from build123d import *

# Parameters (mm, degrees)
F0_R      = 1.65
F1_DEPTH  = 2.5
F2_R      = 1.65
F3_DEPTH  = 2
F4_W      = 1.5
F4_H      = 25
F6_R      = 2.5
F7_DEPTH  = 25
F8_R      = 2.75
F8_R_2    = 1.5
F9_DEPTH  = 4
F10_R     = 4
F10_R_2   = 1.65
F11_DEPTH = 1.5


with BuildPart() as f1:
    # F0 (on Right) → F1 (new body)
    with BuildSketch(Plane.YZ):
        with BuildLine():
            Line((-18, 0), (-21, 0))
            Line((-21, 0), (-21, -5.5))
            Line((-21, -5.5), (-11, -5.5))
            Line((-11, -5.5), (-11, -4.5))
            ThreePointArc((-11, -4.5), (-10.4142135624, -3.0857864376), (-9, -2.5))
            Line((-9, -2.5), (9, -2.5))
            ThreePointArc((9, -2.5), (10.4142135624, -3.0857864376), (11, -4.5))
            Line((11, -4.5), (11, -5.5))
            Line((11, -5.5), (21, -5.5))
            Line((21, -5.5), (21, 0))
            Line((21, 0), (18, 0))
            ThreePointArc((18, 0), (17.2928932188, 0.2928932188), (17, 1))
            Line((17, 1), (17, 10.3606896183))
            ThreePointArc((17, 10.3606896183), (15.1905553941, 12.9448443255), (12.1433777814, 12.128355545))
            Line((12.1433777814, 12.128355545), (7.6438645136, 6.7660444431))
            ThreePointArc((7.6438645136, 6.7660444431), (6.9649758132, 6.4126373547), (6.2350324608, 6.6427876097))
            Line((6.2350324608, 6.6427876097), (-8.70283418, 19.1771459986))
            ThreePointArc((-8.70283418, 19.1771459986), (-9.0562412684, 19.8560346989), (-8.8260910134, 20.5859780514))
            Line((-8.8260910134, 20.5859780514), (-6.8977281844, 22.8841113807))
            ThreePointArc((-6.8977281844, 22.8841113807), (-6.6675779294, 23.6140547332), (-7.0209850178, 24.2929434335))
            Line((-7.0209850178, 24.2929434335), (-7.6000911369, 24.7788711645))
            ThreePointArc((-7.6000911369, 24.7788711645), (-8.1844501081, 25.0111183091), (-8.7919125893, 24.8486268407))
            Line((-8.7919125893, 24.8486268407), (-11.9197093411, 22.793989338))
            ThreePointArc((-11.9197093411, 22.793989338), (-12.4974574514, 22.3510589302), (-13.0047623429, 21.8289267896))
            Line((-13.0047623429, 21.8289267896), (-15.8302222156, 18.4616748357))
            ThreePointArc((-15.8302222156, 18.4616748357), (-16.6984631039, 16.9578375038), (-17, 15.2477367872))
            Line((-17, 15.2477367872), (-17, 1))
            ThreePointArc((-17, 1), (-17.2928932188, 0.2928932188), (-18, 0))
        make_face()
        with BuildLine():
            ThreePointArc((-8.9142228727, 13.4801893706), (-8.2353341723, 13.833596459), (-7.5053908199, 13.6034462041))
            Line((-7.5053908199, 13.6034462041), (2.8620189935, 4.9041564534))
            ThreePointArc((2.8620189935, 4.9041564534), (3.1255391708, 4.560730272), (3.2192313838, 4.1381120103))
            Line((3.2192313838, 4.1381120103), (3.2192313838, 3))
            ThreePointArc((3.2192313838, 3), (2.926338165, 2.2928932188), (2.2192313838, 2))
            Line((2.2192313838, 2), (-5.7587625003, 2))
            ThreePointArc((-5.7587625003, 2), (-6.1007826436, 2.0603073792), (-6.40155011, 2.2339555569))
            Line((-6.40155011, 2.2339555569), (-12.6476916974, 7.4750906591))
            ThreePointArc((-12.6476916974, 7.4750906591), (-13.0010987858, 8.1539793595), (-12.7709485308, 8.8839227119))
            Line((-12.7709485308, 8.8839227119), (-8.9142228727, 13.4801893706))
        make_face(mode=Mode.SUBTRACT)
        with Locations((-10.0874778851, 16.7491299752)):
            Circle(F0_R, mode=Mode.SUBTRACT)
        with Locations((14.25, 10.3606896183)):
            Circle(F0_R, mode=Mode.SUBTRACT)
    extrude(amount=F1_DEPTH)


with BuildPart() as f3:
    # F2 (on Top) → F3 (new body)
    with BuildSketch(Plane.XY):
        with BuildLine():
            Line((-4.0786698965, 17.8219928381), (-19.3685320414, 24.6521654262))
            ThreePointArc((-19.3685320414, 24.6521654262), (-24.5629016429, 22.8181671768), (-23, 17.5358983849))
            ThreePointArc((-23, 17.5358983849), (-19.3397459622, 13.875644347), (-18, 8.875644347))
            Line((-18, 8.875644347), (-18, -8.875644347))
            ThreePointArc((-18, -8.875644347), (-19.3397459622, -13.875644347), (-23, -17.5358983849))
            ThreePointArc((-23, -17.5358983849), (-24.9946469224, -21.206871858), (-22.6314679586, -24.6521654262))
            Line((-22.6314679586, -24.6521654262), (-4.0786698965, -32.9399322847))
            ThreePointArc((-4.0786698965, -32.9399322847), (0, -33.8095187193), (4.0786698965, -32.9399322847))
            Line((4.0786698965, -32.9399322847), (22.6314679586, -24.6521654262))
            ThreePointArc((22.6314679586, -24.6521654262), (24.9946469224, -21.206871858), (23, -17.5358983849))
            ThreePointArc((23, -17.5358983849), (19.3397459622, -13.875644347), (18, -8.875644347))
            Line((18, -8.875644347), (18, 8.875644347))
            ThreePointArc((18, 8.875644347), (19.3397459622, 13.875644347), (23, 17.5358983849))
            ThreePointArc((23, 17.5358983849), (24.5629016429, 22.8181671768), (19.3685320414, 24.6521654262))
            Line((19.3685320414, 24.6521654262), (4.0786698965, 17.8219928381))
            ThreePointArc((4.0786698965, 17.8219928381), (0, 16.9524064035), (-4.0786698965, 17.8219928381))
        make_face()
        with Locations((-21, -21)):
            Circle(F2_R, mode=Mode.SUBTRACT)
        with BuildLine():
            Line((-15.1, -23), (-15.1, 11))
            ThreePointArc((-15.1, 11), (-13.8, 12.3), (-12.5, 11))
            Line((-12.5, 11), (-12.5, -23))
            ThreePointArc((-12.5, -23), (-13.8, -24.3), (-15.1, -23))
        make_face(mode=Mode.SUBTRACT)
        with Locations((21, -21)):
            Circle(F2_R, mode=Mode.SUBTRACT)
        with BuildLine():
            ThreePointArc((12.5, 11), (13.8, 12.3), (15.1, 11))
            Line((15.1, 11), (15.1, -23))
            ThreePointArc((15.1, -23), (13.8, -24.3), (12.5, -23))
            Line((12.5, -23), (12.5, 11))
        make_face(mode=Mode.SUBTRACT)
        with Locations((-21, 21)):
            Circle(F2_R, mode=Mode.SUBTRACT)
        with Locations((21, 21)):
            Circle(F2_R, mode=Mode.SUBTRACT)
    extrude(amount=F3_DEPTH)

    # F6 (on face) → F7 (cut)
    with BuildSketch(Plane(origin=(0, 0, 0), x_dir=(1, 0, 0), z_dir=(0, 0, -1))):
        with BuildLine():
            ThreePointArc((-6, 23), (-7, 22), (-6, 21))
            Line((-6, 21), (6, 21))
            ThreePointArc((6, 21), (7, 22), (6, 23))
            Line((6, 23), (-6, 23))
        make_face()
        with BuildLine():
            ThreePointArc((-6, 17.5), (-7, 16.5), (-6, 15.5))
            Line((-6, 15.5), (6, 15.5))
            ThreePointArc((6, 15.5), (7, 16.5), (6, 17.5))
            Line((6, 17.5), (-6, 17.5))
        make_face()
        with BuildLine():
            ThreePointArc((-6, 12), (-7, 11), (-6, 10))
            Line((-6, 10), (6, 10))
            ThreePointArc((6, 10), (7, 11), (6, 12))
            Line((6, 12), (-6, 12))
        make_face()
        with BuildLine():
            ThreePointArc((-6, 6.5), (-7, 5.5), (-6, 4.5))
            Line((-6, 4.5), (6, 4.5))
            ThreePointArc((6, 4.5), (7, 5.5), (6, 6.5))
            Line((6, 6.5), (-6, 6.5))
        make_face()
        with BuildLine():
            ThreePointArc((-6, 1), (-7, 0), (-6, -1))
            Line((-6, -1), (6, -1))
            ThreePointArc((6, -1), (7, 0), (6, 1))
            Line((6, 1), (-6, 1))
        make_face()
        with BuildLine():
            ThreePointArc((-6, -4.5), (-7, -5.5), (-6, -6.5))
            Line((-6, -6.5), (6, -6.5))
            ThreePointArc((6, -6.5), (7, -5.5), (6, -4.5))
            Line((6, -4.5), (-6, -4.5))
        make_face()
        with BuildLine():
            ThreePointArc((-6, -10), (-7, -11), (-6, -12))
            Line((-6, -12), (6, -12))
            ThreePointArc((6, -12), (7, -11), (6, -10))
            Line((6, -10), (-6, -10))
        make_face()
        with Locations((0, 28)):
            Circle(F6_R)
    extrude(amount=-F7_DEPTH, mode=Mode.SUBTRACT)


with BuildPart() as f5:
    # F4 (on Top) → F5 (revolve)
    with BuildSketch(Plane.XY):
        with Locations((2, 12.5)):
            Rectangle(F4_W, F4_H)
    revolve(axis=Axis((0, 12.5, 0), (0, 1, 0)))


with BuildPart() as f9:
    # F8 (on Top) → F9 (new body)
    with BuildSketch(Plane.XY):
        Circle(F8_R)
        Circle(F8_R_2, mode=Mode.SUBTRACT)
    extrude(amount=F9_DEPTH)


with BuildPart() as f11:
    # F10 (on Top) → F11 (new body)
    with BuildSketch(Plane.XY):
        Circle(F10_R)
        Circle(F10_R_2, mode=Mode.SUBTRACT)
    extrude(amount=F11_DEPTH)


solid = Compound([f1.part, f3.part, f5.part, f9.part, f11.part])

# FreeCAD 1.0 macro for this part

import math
import FreeCAD as App
import Part
import Sketcher
from FreeCAD import Vector
Q = App.Units.Quantity


def add_polygon(sketch, points):
    """Adds a closed chain of lines whose ends are joined by coincident constraints."""
    first, n = sketch.GeometryCount, len(points)
    for a, b in zip(points, points[1:] + points[:1]):
        sketch.addGeometry(Part.LineSegment(App.Vector(*a, 0), App.Vector(*b, 0)), False)
    for i in range(n):
        sketch.addConstraint(Sketcher.Constraint("Coincident", first + i, 2, first + (i + 1) % n, 1))

doc = App.newDocument("Part")
body = doc.addObject("PartDesign::Body", "Body")

# Sketch on YZ plane
sketch1 = body.newObject("Sketcher::SketchObject", "Sketch")
sketch1.AttachmentSupport = (doc.getObject("YZ_Plane"), [""])
sketch1.MapMode = "FlatFace"
sketch1.addGeometry(Part.LineSegment(Vector(-18, 0, 0), Vector(-21, 0, 0)), False)
sketch1.addGeometry(Part.LineSegment(Vector(-21, 0, 0), Vector(-21, -5.5, 0)), False)
sketch1.addGeometry(Part.LineSegment(Vector(-21, -5.5, 0), Vector(-11, -5.5, 0)), False)
sketch1.addGeometry(Part.LineSegment(Vector(-11, -5.5, 0), Vector(-11, -4.5, 0)), False)
sketch1.addGeometry(Part.ArcOfCircle(Part.Circle(Vector(-9, -4.5, 0), Vector(0, 0, 1), 2), math.radians(90), math.radians(180)), False)
sketch1.addGeometry(Part.LineSegment(Vector(-9, -2.5, 0), Vector(9, -2.5, 0)), False)
sketch1.addGeometry(Part.ArcOfCircle(Part.Circle(Vector(9, -4.5, 0), Vector(0, 0, 1), 2), math.radians(0), math.radians(90)), False)
sketch1.addGeometry(Part.LineSegment(Vector(11, -4.5, 0), Vector(11, -5.5, 0)), False)
sketch1.addGeometry(Part.LineSegment(Vector(11, -5.5, 0), Vector(21, -5.5, 0)), False)
sketch1.addGeometry(Part.LineSegment(Vector(21, -5.5, 0), Vector(21, 0, 0)), False)
sketch1.addGeometry(Part.LineSegment(Vector(21, 0, 0), Vector(18, 0, 0)), False)
sketch1.addGeometry(Part.ArcOfCircle(Part.Circle(Vector(18, 1, 0), Vector(0, 0, 1), 1), math.radians(180), math.radians(270)), False)
sketch1.addGeometry(Part.LineSegment(Vector(17, 1, 0), Vector(17, 10.4, 0)), False)
sketch1.addGeometry(Part.ArcOfCircle(Part.Circle(Vector(14.2, 10.4, 0), Vector(0, 0, 1), 2.8), math.radians(0), math.radians(140)), False)
sketch1.addGeometry(Part.LineSegment(Vector(12.1, 12.1, 0), Vector(7.6, 6.8, 0)), False)
sketch1.addGeometry(Part.ArcOfCircle(Part.Circle(Vector(6.9, 7.4, 0), Vector(0, 0, 1), 1), math.radians(-130), math.radians(-40)), False)
sketch1.addGeometry(Part.LineSegment(Vector(6.2, 6.6, 0), Vector(-8.7, 19.2, 0)), False)
sketch1.addGeometry(Part.ArcOfCircle(Part.Circle(Vector(-8.1, 19.9, 0), Vector(0, 0, 1), 1), math.radians(140), math.radians(230)), False)
sketch1.addGeometry(Part.LineSegment(Vector(-8.8, 20.6, 0), Vector(-6.9, 22.9, 0)), False)
sketch1.addGeometry(Part.ArcOfCircle(Part.Circle(Vector(-7.7, 23.5, 0), Vector(0, 0, 1), 1), math.radians(-40), math.radians(50)), False)
sketch1.addGeometry(Part.LineSegment(Vector(-7, 24.3, 0), Vector(-7.6, 24.8, 0)), False)
sketch1.addGeometry(Part.ArcOfCircle(Part.Circle(Vector(-8.2, 24, 0), Vector(0, 0, 1), 1), math.radians(50), math.radians(123)), False)
sketch1.addGeometry(Part.LineSegment(Vector(-8.8, 24.8, 0), Vector(-11.9, 22.8, 0)), False)
sketch1.addGeometry(Part.ArcOfCircle(Part.Circle(Vector(-9.2, 18.6, 0), Vector(0, 0, 1), 5), math.radians(123.3), math.radians(140)), False)
sketch1.addGeometry(Part.LineSegment(Vector(-13, 21.8, 0), Vector(-15.8, 18.5, 0)), False)
sketch1.addGeometry(Part.ArcOfCircle(Part.Circle(Vector(-12, 15.2, 0), Vector(0, 0, 1), 5), math.radians(140), math.radians(180)), False)
sketch1.addGeometry(Part.LineSegment(Vector(-17, 15.2, 0), Vector(-17, 1, 0)), False)
sketch1.addGeometry(Part.ArcOfCircle(Part.Circle(Vector(-18, 1, 0), Vector(0, 0, 1), 1), math.radians(-90), math.radians(0)), False)
sketch1.addGeometry(Part.LineSegment(Vector(-12.8, 8.9, 0), Vector(-8.9, 13.5, 0)), False)
sketch1.addGeometry(Part.ArcOfCircle(Part.Circle(Vector(-8.1, 12.8, 0), Vector(0, 0, 1), 1), math.radians(50), math.radians(140)), False)
sketch1.addGeometry(Part.LineSegment(Vector(-7.5, 13.6, 0), Vector(2.9, 4.9, 0)), False)
sketch1.addGeometry(Part.ArcOfCircle(Part.Circle(Vector(2.2, 4.1, 0), Vector(0, 0, 1), 1), math.radians(0), math.radians(50)), False)
sketch1.addGeometry(Part.LineSegment(Vector(3.2, 4.1, 0), Vector(3.2, 3, 0)), False)
sketch1.addGeometry(Part.ArcOfCircle(Part.Circle(Vector(2.2, 3, 0), Vector(0, 0, 1), 1), math.radians(-90), math.radians(0)), False)
sketch1.addGeometry(Part.LineSegment(Vector(2.2, 2, 0), Vector(-5.8, 2, 0)), False)
sketch1.addGeometry(Part.ArcOfCircle(Part.Circle(Vector(-5.8, 3, 0), Vector(0, 0, 1), 1), math.radians(-130), math.radians(-90)), False)
sketch1.addGeometry(Part.LineSegment(Vector(-6.4, 2.2, 0), Vector(-12.6, 7.5, 0)), False)
sketch1.addGeometry(Part.ArcOfCircle(Part.Circle(Vector(-12, 8.2, 0), Vector(0, 0, 1), 1), math.radians(140), math.radians(230)), False)
sketch1.addGeometry(Part.Circle(Vector(-10.1, 16.7, 0), Vector(0, 0, 1), 1.6), False)
sketch1.addGeometry(Part.Circle(Vector(14.2, 10.4, 0), Vector(0, 0, 1), 1.6), False)
sketch1.addConstraint(Sketcher.Constraint("Coincident", 0, 2, 1, 1))
sketch1.addConstraint(Sketcher.Constraint("Coincident", 1, 2, 2, 1))
sketch1.addConstraint(Sketcher.Constraint("Coincident", 2, 2, 3, 1))
sketch1.addConstraint(Sketcher.Constraint("Tangent", 3, 2, 4, 2))
sketch1.addConstraint(Sketcher.Constraint("Tangent", 4, 1, 5, 1))
sketch1.addConstraint(Sketcher.Constraint("Tangent", 5, 2, 6, 2))
sketch1.addConstraint(Sketcher.Constraint("Tangent", 6, 1, 7, 1))
sketch1.addConstraint(Sketcher.Constraint("Coincident", 7, 2, 8, 1))
sketch1.addConstraint(Sketcher.Constraint("Coincident", 8, 2, 9, 1))
sketch1.addConstraint(Sketcher.Constraint("Coincident", 9, 2, 10, 1))
sketch1.addConstraint(Sketcher.Constraint("Tangent", 10, 2, 11, 2))
sketch1.addConstraint(Sketcher.Constraint("Tangent", 11, 1, 12, 1))
sketch1.addConstraint(Sketcher.Constraint("Tangent", 12, 2, 13, 1))
sketch1.addConstraint(Sketcher.Constraint("Tangent", 13, 2, 14, 1))
sketch1.addConstraint(Sketcher.Constraint("Tangent", 14, 2, 15, 2))
sketch1.addConstraint(Sketcher.Constraint("Tangent", 15, 1, 16, 1))
sketch1.addConstraint(Sketcher.Constraint("Tangent", 16, 2, 17, 2))
sketch1.addConstraint(Sketcher.Constraint("Tangent", 17, 1, 18, 1))
sketch1.addConstraint(Sketcher.Constraint("Tangent", 18, 2, 19, 1))
sketch1.addConstraint(Sketcher.Constraint("Tangent", 19, 2, 20, 1))
sketch1.addConstraint(Sketcher.Constraint("Tangent", 20, 2, 21, 1))
sketch1.addConstraint(Sketcher.Constraint("Tangent", 21, 2, 22, 1))
sketch1.addConstraint(Sketcher.Constraint("Tangent", 22, 2, 23, 1))
sketch1.addConstraint(Sketcher.Constraint("Tangent", 23, 2, 24, 1))
sketch1.addConstraint(Sketcher.Constraint("Tangent", 24, 2, 25, 1))
sketch1.addConstraint(Sketcher.Constraint("Tangent", 25, 2, 26, 1))
sketch1.addConstraint(Sketcher.Constraint("Tangent", 26, 2, 27, 2))
sketch1.addConstraint(Sketcher.Constraint("Tangent", 27, 1, 0, 1))
sketch1.addConstraint(Sketcher.Constraint("Tangent", 28, 2, 29, 2))
sketch1.addConstraint(Sketcher.Constraint("Tangent", 29, 1, 30, 1))
sketch1.addConstraint(Sketcher.Constraint("Tangent", 30, 2, 31, 2))
sketch1.addConstraint(Sketcher.Constraint("Tangent", 31, 1, 32, 1))
sketch1.addConstraint(Sketcher.Constraint("Tangent", 32, 2, 33, 2))
sketch1.addConstraint(Sketcher.Constraint("Tangent", 33, 1, 34, 1))
sketch1.addConstraint(Sketcher.Constraint("Tangent", 34, 2, 35, 2))
sketch1.addConstraint(Sketcher.Constraint("Tangent", 35, 1, 36, 1))
sketch1.addConstraint(Sketcher.Constraint("Tangent", 36, 2, 37, 2))
sketch1.addConstraint(Sketcher.Constraint("Tangent", 37, 1, 28, 1))
sketch1.addConstraint(Sketcher.Constraint("Horizontal", 0))
sketch1.addConstraint(Sketcher.Constraint("Vertical", 1))
sketch1.addConstraint(Sketcher.Constraint("Horizontal", 2))
sketch1.addConstraint(Sketcher.Constraint("Vertical", 3))
sketch1.addConstraint(Sketcher.Constraint("Horizontal", 5))
sketch1.addConstraint(Sketcher.Constraint("Vertical", 7))
sketch1.addConstraint(Sketcher.Constraint("Horizontal", 8))
sketch1.addConstraint(Sketcher.Constraint("Vertical", 9))
sketch1.addConstraint(Sketcher.Constraint("Horizontal", 10))
sketch1.addConstraint(Sketcher.Constraint("Vertical", 12))
sketch1.addConstraint(Sketcher.Constraint("Vertical", 26))
sketch1.addConstraint(Sketcher.Constraint("Vertical", 32))
sketch1.addConstraint(Sketcher.Constraint("Horizontal", 34))
sketch1.addConstraint(Sketcher.Constraint("Coincident", 39, 3, 13, 3))
sketch1.addConstraint(Sketcher.Constraint("Equal", 4, 6))
sketch1.addConstraint(Sketcher.Constraint("Equal", 11, 15))
sketch1.addConstraint(Sketcher.Constraint("Equal", 15, 17))
sketch1.addConstraint(Sketcher.Constraint("Equal", 17, 19))
sketch1.addConstraint(Sketcher.Constraint("Equal", 19, 21))
sketch1.addConstraint(Sketcher.Constraint("Equal", 23, 25))
sketch1.addConstraint(Sketcher.Constraint("Equal", 21, 27))
sketch1.addConstraint(Sketcher.Constraint("Equal", 27, 29))
sketch1.addConstraint(Sketcher.Constraint("Equal", 29, 31))
sketch1.addConstraint(Sketcher.Constraint("Equal", 31, 33))
sketch1.addConstraint(Sketcher.Constraint("Equal", 33, 35))
sketch1.addConstraint(Sketcher.Constraint("Equal", 35, 37))
sketch1.addConstraint(Sketcher.Constraint("Equal", 38, 39))
sketch1.addConstraint(Sketcher.Constraint("Symmetric", 0, 2, 9, 2, -1, 1))
sketch1.addConstraint(Sketcher.Constraint("Symmetric", 11, 3, 27, 3, -2))
sketch1.addConstraint(Sketcher.Constraint("Symmetric", 2, 2, 7, 2, -2))
sketch1.addConstraint(Sketcher.Constraint("Perpendicular", 14, 16))
sketch1.addConstraint(Sketcher.Constraint("Perpendicular", 16, 18))
sketch1.addConstraint(Sketcher.Constraint("Perpendicular", 18, 20))
sketch1.addConstraint(Sketcher.Constraint("Perpendicular", 20, 24))
sketch1.addConstraint(Sketcher.Constraint("Parallel", 24, 28))
sketch1.addConstraint(Sketcher.Constraint("Perpendicular", 28, 30))
sketch1.addConstraint(Sketcher.Constraint("Parallel", 30, 36))
sketch1.addConstraint(Sketcher.Constraint("Radius", 4, 2.0))
sketch1.addConstraint(Sketcher.Constraint("Radius", 11, 1.0))
sketch1.addConstraint(Sketcher.Constraint("Radius", 23, 5.0))
sketch1.addConstraint(Sketcher.Constraint("Diameter", 38, 3.3))
sketch1.addConstraint(Sketcher.Constraint("DistanceX", 0, 2, 0, 1, 3.0))
sketch1.addConstraint(Sketcher.Constraint("DistanceX", 2, 1, 2, 2, 10.0))
sketch1.addConstraint(Sketcher.Constraint("DistanceX", 5, 1, 5, 2, 18.0))
sketch1.addConstraint(Sketcher.Constraint("DistanceY", 3, 1, 3, 2, 1.0))
sketch1.addConstraint(Sketcher.Constraint("Angle", 14, Q("-130 deg")))
sketch1.addConstraint(Sketcher.Constraint("Radius", 13, 2.75))
sketch1.addConstraint(Sketcher.Constraint("Distance", 14, 7.0))
sketch1.addConstraint(Sketcher.Constraint("Distance", 18, 3.0))
sketch1.addConstraint(Sketcher.Constraint("Distance", 28, 6.0))
sketch1.addConstraint(Sketcher.Constraint("DistanceY", 1, 2, 1, 1, 5.5))
sketch1.addConstraint(Sketcher.Constraint("DistanceY", -1, 1, 33, 3, 3.0))
sketch1.addConstraint(Sketcher.Constraint("Distance", 16, 19.5))
sketch1.addConstraint(Sketcher.Constraint("DistanceX", 17, 1, 20, 2, 1.226))
sketch1.addConstraint(Sketcher.Constraint("DistanceY", 12, 1, 12, 2, 9.36069))
sketch1.addConstraint(Sketcher.Constraint("DistanceY", -1, 1, 29, 3, 12.837402))
sketch1.addConstraint(Sketcher.Constraint("DistanceY", 23, 3, 17, 3, 1.328202))
sketch1.addConstraint(Sketcher.Constraint("DistanceX", 21, 3, 29, 3, 0.0947))
sketch1.addConstraint(Sketcher.Constraint("DistanceY", 37, 3, 25, 3, 7.006602))
sketch1.addConstraint(Sketcher.Constraint("DistanceX", 38, 3, 29, 3, 1.939299))
sketch1.addConstraint(Sketcher.Constraint("DistanceX", 31, 3, 15, 1, 4.015801))
sketch1.addConstraint(Sketcher.Constraint("DistanceY", -1, 1, 38, 3, 16.74913))
pad1 = body.newObject("PartDesign::Pad", "Pad")
pad1.Profile = sketch1
pad1.Length = 2.5
body2 = doc.addObject("PartDesign::Body", "Body001")

# Sketch on XY plane
sketch2 = body2.newObject("Sketcher::SketchObject", "Sketch001")
sketch2.AttachmentSupport = (doc.getObject("XY_Plane001"), [""])
sketch2.MapMode = "FlatFace"
sketch2.addGeometry(Part.LineSegment(Vector(-4.1, 17.8, 0), Vector(-19.4, 24.7, 0)), False)
sketch2.addGeometry(Part.ArcOfCircle(Part.Circle(Vector(-21, 21, 0), Vector(0, 0, 1), 4), math.radians(66), math.radians(240)), False)
sketch2.addGeometry(Part.ArcOfCircle(Part.Circle(Vector(-28, 8.9, 0), Vector(0, 0, 1), 10), math.radians(0), math.radians(60)), False)
sketch2.addGeometry(Part.LineSegment(Vector(-18, 8.9, 0), Vector(-18, -8.9, 0)), False)
sketch2.addGeometry(Part.ArcOfCircle(Part.Circle(Vector(-28, -8.9, 0), Vector(0, 0, 1), 10), math.radians(-60), math.radians(0)), False)
sketch2.addGeometry(Part.ArcOfCircle(Part.Circle(Vector(-21, -21, 0), Vector(0, 0, 1), 4), math.radians(120), math.radians(246)), False)
sketch2.addGeometry(Part.LineSegment(Vector(-22.6, -24.7, 0), Vector(-4.1, -32.9, 0)), False)
sketch2.addGeometry(Part.ArcOfCircle(Part.Circle(Vector(0, -23.8, 0), Vector(0, 0, 1), 10), math.radians(-114), math.radians(-66)), False)
sketch2.addGeometry(Part.LineSegment(Vector(4.1, -32.9, 0), Vector(22.6, -24.7, 0)), False)
sketch2.addGeometry(Part.ArcOfCircle(Part.Circle(Vector(21, -21, 0), Vector(0, 0, 1), 4), math.radians(-66), math.radians(60)), False)
sketch2.addGeometry(Part.ArcOfCircle(Part.Circle(Vector(28, -8.9, 0), Vector(0, 0, 1), 10), math.radians(180), math.radians(240)), False)
sketch2.addGeometry(Part.LineSegment(Vector(18, -8.9, 0), Vector(18, 8.9, 0)), False)
sketch2.addGeometry(Part.ArcOfCircle(Part.Circle(Vector(28, 8.9, 0), Vector(0, 0, 1), 10), math.radians(120), math.radians(180)), False)
sketch2.addGeometry(Part.ArcOfCircle(Part.Circle(Vector(21, 21, 0), Vector(0, 0, 1), 4), math.radians(-60), math.radians(114)), False)
sketch2.addGeometry(Part.LineSegment(Vector(19.4, 24.7, 0), Vector(4.1, 17.8, 0)), False)
sketch2.addGeometry(Part.ArcOfCircle(Part.Circle(Vector(0, 27, 0), Vector(0, 0, 1), 10), math.radians(-114), math.radians(-66)), False)
sketch2.addGeometry(Part.Circle(Vector(-21, -21, 0), Vector(0, 0, 1), 1.6), False)
sketch2.addGeometry(Part.ArcOfCircle(Part.Circle(Vector(-13.8, -23, 0), Vector(0, 0, 1), 1.3), math.radians(180), math.radians(360)), False)
sketch2.addGeometry(Part.LineSegment(Vector(-15.1, -23, 0), Vector(-15.1, 11, 0)), False)
sketch2.addGeometry(Part.ArcOfCircle(Part.Circle(Vector(-13.8, 11, 0), Vector(0, 0, 1), 1.3), math.radians(0), math.radians(180)), False)
sketch2.addGeometry(Part.LineSegment(Vector(-12.5, 11, 0), Vector(-12.5, -23, 0)), False)
sketch2.addGeometry(Part.Circle(Vector(21, -21, 0), Vector(0, 0, 1), 1.6), False)
sketch2.addGeometry(Part.LineSegment(Vector(12.5, -23, 0), Vector(12.5, 11, 0)), False)
sketch2.addGeometry(Part.ArcOfCircle(Part.Circle(Vector(13.8, 11, 0), Vector(0, 0, 1), 1.3), math.radians(0), math.radians(180)), False)
sketch2.addGeometry(Part.LineSegment(Vector(15.1, 11, 0), Vector(15.1, -23, 0)), False)
sketch2.addGeometry(Part.ArcOfCircle(Part.Circle(Vector(13.8, -23, 0), Vector(0, 0, 1), 1.3), math.radians(180), math.radians(360)), False)
sketch2.addGeometry(Part.Circle(Vector(-21, 21, 0), Vector(0, 0, 1), 1.6), False)
sketch2.addGeometry(Part.Circle(Vector(21, 21, 0), Vector(0, 0, 1), 1.6), False)
sketch2.addConstraint(Sketcher.Constraint("Tangent", 0, 2, 1, 1))
sketch2.addConstraint(Sketcher.Constraint("Tangent", 1, 2, 2, 2))
sketch2.addConstraint(Sketcher.Constraint("Tangent", 2, 1, 3, 1))
sketch2.addConstraint(Sketcher.Constraint("Tangent", 3, 2, 4, 2))
sketch2.addConstraint(Sketcher.Constraint("Tangent", 4, 1, 5, 1))
sketch2.addConstraint(Sketcher.Constraint("Tangent", 5, 2, 6, 1))
sketch2.addConstraint(Sketcher.Constraint("Tangent", 6, 2, 7, 1))
sketch2.addConstraint(Sketcher.Constraint("Tangent", 7, 2, 8, 1))
sketch2.addConstraint(Sketcher.Constraint("Tangent", 8, 2, 9, 1))
sketch2.addConstraint(Sketcher.Constraint("Tangent", 9, 2, 10, 2))
sketch2.addConstraint(Sketcher.Constraint("Tangent", 10, 1, 11, 1))
sketch2.addConstraint(Sketcher.Constraint("Tangent", 11, 2, 12, 2))
sketch2.addConstraint(Sketcher.Constraint("Tangent", 12, 1, 13, 1))
sketch2.addConstraint(Sketcher.Constraint("Tangent", 13, 2, 14, 1))
sketch2.addConstraint(Sketcher.Constraint("Tangent", 14, 2, 15, 2))
sketch2.addConstraint(Sketcher.Constraint("Tangent", 15, 1, 0, 1))
sketch2.addConstraint(Sketcher.Constraint("Tangent", 17, 1, 18, 1))
sketch2.addConstraint(Sketcher.Constraint("Tangent", 18, 2, 19, 2))
sketch2.addConstraint(Sketcher.Constraint("Tangent", 19, 1, 20, 1))
sketch2.addConstraint(Sketcher.Constraint("Tangent", 20, 2, 17, 2))
sketch2.addConstraint(Sketcher.Constraint("Tangent", 22, 2, 23, 2))
sketch2.addConstraint(Sketcher.Constraint("Tangent", 23, 1, 24, 1))
sketch2.addConstraint(Sketcher.Constraint("Tangent", 24, 2, 25, 2))
sketch2.addConstraint(Sketcher.Constraint("Tangent", 25, 1, 22, 1))
sketch2.addConstraint(Sketcher.Constraint("Vertical", 3))
sketch2.addConstraint(Sketcher.Constraint("Vertical", 11))
sketch2.addConstraint(Sketcher.Constraint("Vertical", 18))
sketch2.addConstraint(Sketcher.Constraint("Vertical", 20))
sketch2.addConstraint(Sketcher.Constraint("Vertical", 22))
sketch2.addConstraint(Sketcher.Constraint("Vertical", 24))
sketch2.addConstraint(Sketcher.Constraint("Coincident", 16, 3, 5, 3))
sketch2.addConstraint(Sketcher.Constraint("Coincident", 21, 3, 9, 3))
sketch2.addConstraint(Sketcher.Constraint("Coincident", 26, 3, 1, 3))
sketch2.addConstraint(Sketcher.Constraint("Coincident", 27, 3, 13, 3))
sketch2.addConstraint(Sketcher.Constraint("Equal", 2, 4))
sketch2.addConstraint(Sketcher.Constraint("Equal", 1, 5))
sketch2.addConstraint(Sketcher.Constraint("Equal", 4, 7))
sketch2.addConstraint(Sketcher.Constraint("Equal", 5, 9))
sketch2.addConstraint(Sketcher.Constraint("Equal", 7, 10))
sketch2.addConstraint(Sketcher.Constraint("Equal", 10, 12))
sketch2.addConstraint(Sketcher.Constraint("Equal", 9, 13))
sketch2.addConstraint(Sketcher.Constraint("Equal", 12, 15))
sketch2.addConstraint(Sketcher.Constraint("Equal", 16, 21))
sketch2.addConstraint(Sketcher.Constraint("Equal", 19, 23))
sketch2.addConstraint(Sketcher.Constraint("Equal", 21, 26))
sketch2.addConstraint(Sketcher.Constraint("Equal", 26, 27))
sketch2.addConstraint(Sketcher.Constraint("Symmetric", 1, 3, 9, 3, -1, 1))
sketch2.addConstraint(Sketcher.Constraint("Symmetric", 4, 3, 12, 3, -1, 1))
sketch2.addConstraint(Sketcher.Constraint("Symmetric", 5, 3, 9, 3, -2))
sketch2.addConstraint(Sketcher.Constraint("Symmetric", 19, 3, 23, 3, -2))
sketch2.addConstraint(Sketcher.Constraint("Symmetric", 0, 2, 13, 2, -2))
sketch2.addConstraint(Sketcher.Constraint("PointOnObject", 7, 3, -2))
sketch2.addConstraint(Sketcher.Constraint("Parallel", 0, 6))
sketch2.addConstraint(Sketcher.Constraint("Horizontal", 17, 3, 25, 3))
sketch2.addConstraint(Sketcher.Constraint("Radius", 1, 4.0))
sketch2.addConstraint(Sketcher.Constraint("Radius", 2, 10.0))
sketch2.addConstraint(Sketcher.Constraint("Diameter", 16, 3.3))
sketch2.addConstraint(Sketcher.Constraint("Radius", 17, 1.3))
sketch2.addConstraint(Sketcher.Constraint("DistanceY", 18, 1, 18, 2, 34.0))
sketch2.addConstraint(Sketcher.Constraint("DistanceX", 1, 3, -1, 1, 21.0))
sketch2.addConstraint(Sketcher.Constraint("DistanceY", -1, 1, 1, 3, 21.0))
sketch2.addConstraint(Sketcher.Constraint("DistanceX", 2, 3, -1, 1, 28.0))
sketch2.addConstraint(Sketcher.Constraint("DistanceY", 17, 3, -1, 1, 23.0))
sketch2.addConstraint(Sketcher.Constraint("DistanceX", 17, 3, -1, 1, 13.8))
sketch2.addConstraint(Sketcher.Constraint("DistanceX", 5, 2, 6, 2, 18.552798))
pad2 = body2.newObject("PartDesign::Pad", "Pad001")
pad2.Profile = sketch2
pad2.Length = 2

# Sketch on XY plane
sketch3 = body2.newObject("Sketcher::SketchObject", "Sketch002")
sketch3.AttachmentSupport = (doc.getObject("XY_Plane001"), [""])
sketch3.MapMode = "FlatFace"
sketch3.addGeometry(Part.ArcOfCircle(Part.Circle(Vector(-6, -22, 0), Vector(0, 0, 1), 1), math.radians(90), math.radians(270)), False)
sketch3.addGeometry(Part.LineSegment(Vector(-6, -21, 0), Vector(6, -21, 0)), False)
sketch3.addGeometry(Part.ArcOfCircle(Part.Circle(Vector(6, -22, 0), Vector(0, 0, 1), 1), math.radians(-90), math.radians(90)), False)
sketch3.addGeometry(Part.LineSegment(Vector(6, -23, 0), Vector(-6, -23, 0)), False)
sketch3.addGeometry(Part.ArcOfCircle(Part.Circle(Vector(-6, -16.5, 0), Vector(0, 0, 1), 1), math.radians(90), math.radians(270)), False)
sketch3.addGeometry(Part.LineSegment(Vector(-6, -15.5, 0), Vector(6, -15.5, 0)), False)
sketch3.addGeometry(Part.ArcOfCircle(Part.Circle(Vector(6, -16.5, 0), Vector(0, 0, 1), 1), math.radians(-90), math.radians(90)), False)
sketch3.addGeometry(Part.LineSegment(Vector(6, -17.5, 0), Vector(-6, -17.5, 0)), False)
sketch3.addGeometry(Part.ArcOfCircle(Part.Circle(Vector(-6, -11, 0), Vector(0, 0, 1), 1), math.radians(90), math.radians(270)), False)
sketch3.addGeometry(Part.LineSegment(Vector(-6, -10, 0), Vector(6, -10, 0)), False)
sketch3.addGeometry(Part.ArcOfCircle(Part.Circle(Vector(6, -11, 0), Vector(0, 0, 1), 1), math.radians(-90), math.radians(90)), False)
sketch3.addGeometry(Part.LineSegment(Vector(6, -12, 0), Vector(-6, -12, 0)), False)
sketch3.addGeometry(Part.ArcOfCircle(Part.Circle(Vector(-6, -5.5, 0), Vector(0, 0, 1), 1), math.radians(90), math.radians(270)), False)
sketch3.addGeometry(Part.LineSegment(Vector(-6, -4.5, 0), Vector(6, -4.5, 0)), False)
sketch3.addGeometry(Part.ArcOfCircle(Part.Circle(Vector(6, -5.5, 0), Vector(0, 0, 1), 1), math.radians(-90), math.radians(90)), False)
sketch3.addGeometry(Part.LineSegment(Vector(6, -6.5, 0), Vector(-6, -6.5, 0)), False)
sketch3.addGeometry(Part.ArcOfCircle(Part.Circle(Vector(-6, 0, 0), Vector(0, 0, 1), 1), math.radians(90), math.radians(270)), False)
sketch3.addGeometry(Part.LineSegment(Vector(-6, 1, 0), Vector(6, 1, 0)), False)
sketch3.addGeometry(Part.ArcOfCircle(Part.Circle(Vector(6, 0, 0), Vector(0, 0, 1), 1), math.radians(-90), math.radians(90)), False)
sketch3.addGeometry(Part.LineSegment(Vector(6, -1, 0), Vector(-6, -1, 0)), False)
sketch3.addGeometry(Part.ArcOfCircle(Part.Circle(Vector(-6, 5.5, 0), Vector(0, 0, 1), 1), math.radians(90), math.radians(270)), False)
sketch3.addGeometry(Part.LineSegment(Vector(-6, 6.5, 0), Vector(6, 6.5, 0)), False)
sketch3.addGeometry(Part.ArcOfCircle(Part.Circle(Vector(6, 5.5, 0), Vector(0, 0, 1), 1), math.radians(-90), math.radians(90)), False)
sketch3.addGeometry(Part.LineSegment(Vector(6, 4.5, 0), Vector(-6, 4.5, 0)), False)
sketch3.addGeometry(Part.ArcOfCircle(Part.Circle(Vector(-6, 11, 0), Vector(0, 0, 1), 1), math.radians(90), math.radians(270)), False)
sketch3.addGeometry(Part.LineSegment(Vector(-6, 12, 0), Vector(6, 12, 0)), False)
sketch3.addGeometry(Part.ArcOfCircle(Part.Circle(Vector(6, 11, 0), Vector(0, 0, 1), 1), math.radians(-90), math.radians(90)), False)
sketch3.addGeometry(Part.LineSegment(Vector(6, 10, 0), Vector(-6, 10, 0)), False)
sketch3.addGeometry(Part.Circle(Vector(0, -28, 0), Vector(0, 0, 1), 2.5), False)
sketch3.addConstraint(Sketcher.Constraint("Tangent", 0, 1, 1, 1))
sketch3.addConstraint(Sketcher.Constraint("Tangent", 1, 2, 2, 2))
sketch3.addConstraint(Sketcher.Constraint("Tangent", 2, 1, 3, 1))
sketch3.addConstraint(Sketcher.Constraint("Tangent", 3, 2, 0, 2))
sketch3.addConstraint(Sketcher.Constraint("Tangent", 4, 1, 5, 1))
sketch3.addConstraint(Sketcher.Constraint("Tangent", 5, 2, 6, 2))
sketch3.addConstraint(Sketcher.Constraint("Tangent", 6, 1, 7, 1))
sketch3.addConstraint(Sketcher.Constraint("Tangent", 7, 2, 4, 2))
sketch3.addConstraint(Sketcher.Constraint("Tangent", 8, 1, 9, 1))
sketch3.addConstraint(Sketcher.Constraint("Tangent", 9, 2, 10, 2))
sketch3.addConstraint(Sketcher.Constraint("Tangent", 10, 1, 11, 1))
sketch3.addConstraint(Sketcher.Constraint("Tangent", 11, 2, 8, 2))
sketch3.addConstraint(Sketcher.Constraint("Tangent", 12, 1, 13, 1))
sketch3.addConstraint(Sketcher.Constraint("Tangent", 13, 2, 14, 2))
sketch3.addConstraint(Sketcher.Constraint("Tangent", 14, 1, 15, 1))
sketch3.addConstraint(Sketcher.Constraint("Tangent", 15, 2, 12, 2))
sketch3.addConstraint(Sketcher.Constraint("Tangent", 16, 1, 17, 1))
sketch3.addConstraint(Sketcher.Constraint("Tangent", 17, 2, 18, 2))
sketch3.addConstraint(Sketcher.Constraint("Tangent", 18, 1, 19, 1))
sketch3.addConstraint(Sketcher.Constraint("Tangent", 19, 2, 16, 2))
sketch3.addConstraint(Sketcher.Constraint("Tangent", 20, 1, 21, 1))
sketch3.addConstraint(Sketcher.Constraint("Tangent", 21, 2, 22, 2))
sketch3.addConstraint(Sketcher.Constraint("Tangent", 22, 1, 23, 1))
sketch3.addConstraint(Sketcher.Constraint("Tangent", 23, 2, 20, 2))
sketch3.addConstraint(Sketcher.Constraint("Tangent", 24, 1, 25, 1))
sketch3.addConstraint(Sketcher.Constraint("Tangent", 25, 2, 26, 2))
sketch3.addConstraint(Sketcher.Constraint("Tangent", 26, 1, 27, 1))
sketch3.addConstraint(Sketcher.Constraint("Tangent", 27, 2, 24, 2))
sketch3.addConstraint(Sketcher.Constraint("Horizontal", 1))
sketch3.addConstraint(Sketcher.Constraint("Horizontal", 3))
sketch3.addConstraint(Sketcher.Constraint("Horizontal", 5))
sketch3.addConstraint(Sketcher.Constraint("Horizontal", 7))
sketch3.addConstraint(Sketcher.Constraint("Horizontal", 9))
sketch3.addConstraint(Sketcher.Constraint("Horizontal", 11))
sketch3.addConstraint(Sketcher.Constraint("Horizontal", 13))
sketch3.addConstraint(Sketcher.Constraint("Horizontal", 15))
sketch3.addConstraint(Sketcher.Constraint("Horizontal", 17))
sketch3.addConstraint(Sketcher.Constraint("Horizontal", 19))
sketch3.addConstraint(Sketcher.Constraint("Horizontal", 21))
sketch3.addConstraint(Sketcher.Constraint("Horizontal", 23))
sketch3.addConstraint(Sketcher.Constraint("Horizontal", 25))
sketch3.addConstraint(Sketcher.Constraint("Horizontal", 27))
sketch3.addConstraint(Sketcher.Constraint("Equal", 2, 4))
sketch3.addConstraint(Sketcher.Constraint("Equal", 6, 8))
sketch3.addConstraint(Sketcher.Constraint("Equal", 10, 12))
sketch3.addConstraint(Sketcher.Constraint("Equal", 14, 16))
sketch3.addConstraint(Sketcher.Constraint("Equal", 18, 20))
sketch3.addConstraint(Sketcher.Constraint("Equal", 22, 24))
sketch3.addConstraint(Sketcher.Constraint("Symmetric", 16, 3, 18, 3, -1, 1))
sketch3.addConstraint(Sketcher.Constraint("Symmetric", 14, 3, 20, 3, -1, 1))
sketch3.addConstraint(Sketcher.Constraint("Symmetric", 10, 3, 24, 3, -1, 1))
sketch3.addConstraint(Sketcher.Constraint("PointOnObject", 28, 3, -2))
sketch3.addConstraint(Sketcher.Constraint("Vertical", 0, 3, 4, 3))
sketch3.addConstraint(Sketcher.Constraint("Vertical", 2, 3, 6, 3))
sketch3.addConstraint(Sketcher.Constraint("Vertical", 4, 3, 8, 3))
sketch3.addConstraint(Sketcher.Constraint("Vertical", 6, 3, 10, 3))
sketch3.addConstraint(Sketcher.Constraint("Vertical", 8, 3, 12, 3))
sketch3.addConstraint(Sketcher.Constraint("Vertical", 10, 3, 14, 3))
sketch3.addConstraint(Sketcher.Constraint("Vertical", 12, 3, 16, 3))
sketch3.addConstraint(Sketcher.Constraint("Vertical", 14, 3, 18, 3))
sketch3.addConstraint(Sketcher.Constraint("Vertical", 18, 3, 22, 3))
sketch3.addConstraint(Sketcher.Constraint("Vertical", 22, 3, 26, 3))
sketch3.addConstraint(Sketcher.Constraint("Diameter", 28, 5.0))
sketch3.addConstraint(Sketcher.Constraint("Radius", 0, 1.0))
sketch3.addConstraint(Sketcher.Constraint("DistanceX", 1, 1, 1, 2, 12.0))
sketch3.addConstraint(Sketcher.Constraint("DistanceY", 0, 3, -1, 1, 22.0))
sketch3.addConstraint(Sketcher.Constraint("DistanceY", 8, 3, -1, 1, 11.0))
sketch3.addConstraint(Sketcher.Constraint("DistanceY", 28, 3, -1, 1, 28.0))
sketch3.addConstraint(Sketcher.Constraint("DistanceY", 4, 3, 12, 3, 11.0))
sketch3.addConstraint(Sketcher.Constraint("DistanceY", 12, 3, 20, 3, 11.0))
pocket1 = body2.newObject("PartDesign::Pocket", "Pocket")
pocket1.Profile = sketch3
pocket1.Length = 25
pocket1.Reversed = True
body3 = doc.addObject("PartDesign::Body", "Body002")

# Sketch on XY plane
sketch4 = body3.newObject("Sketcher::SketchObject", "Sketch003")
sketch4.AttachmentSupport = (doc.getObject("XY_Plane002"), [""])
sketch4.MapMode = "FlatFace"
add_polygon(sketch4, [(1.2, 25), (1.2, 0), (2.8, 0), (2.8, 25)])  # lines 0-3
sketch4.addConstraint(Sketcher.Constraint("Vertical", 0))
sketch4.addConstraint(Sketcher.Constraint("Horizontal", 1))
sketch4.addConstraint(Sketcher.Constraint("Vertical", 2))
sketch4.addConstraint(Sketcher.Constraint("Horizontal", 3))
sketch4.addConstraint(Sketcher.Constraint("PointOnObject", 0, 2, -1))
sketch4.addConstraint(Sketcher.Constraint("DistanceY", 0, 2, 0, 1, 25.0))
sketch4.addConstraint(Sketcher.Constraint("DistanceX", 1, 1, 1, 2, 1.5))
sketch4.addConstraint(Sketcher.Constraint("DistanceX", -1, 1, 0, 2, 1.25))
revolution = body3.newObject("PartDesign::Revolution", "Revolution")
revolution.Profile = sketch4
revolution.ReferenceAxis = (sketch4, ["V_Axis"])
revolution.Angle = 360
body4 = doc.addObject("PartDesign::Body", "Body003")

# Sketch on XY plane
sketch5 = body4.newObject("Sketcher::SketchObject", "Sketch004")
sketch5.AttachmentSupport = (doc.getObject("XY_Plane003"), [""])
sketch5.MapMode = "FlatFace"
sketch5.addGeometry(Part.Circle(Vector(0, 0, 0), Vector(0, 0, 1), 2.8), False)
sketch5.addGeometry(Part.Circle(Vector(0, 0, 0), Vector(0, 0, 1), 1.5), False)
sketch5.addConstraint(Sketcher.Constraint("Coincident", 0, 3, -1, 1))
sketch5.addConstraint(Sketcher.Constraint("Coincident", 1, 3, -1, 1))
sketch5.addConstraint(Sketcher.Constraint("Diameter", 1, 3.0))
sketch5.addConstraint(Sketcher.Constraint("Diameter", 0, 5.5))
pad3 = body4.newObject("PartDesign::Pad", "Pad002")
pad3.Profile = sketch5
pad3.Length = 4
body5 = doc.addObject("PartDesign::Body", "Body004")

# Sketch on XY plane
sketch6 = body5.newObject("Sketcher::SketchObject", "Sketch005")
sketch6.AttachmentSupport = (doc.getObject("XY_Plane004"), [""])
sketch6.MapMode = "FlatFace"
sketch6.addGeometry(Part.Circle(Vector(0, 0, 0), Vector(0, 0, 1), 4), False)
sketch6.addGeometry(Part.Circle(Vector(0, 0, 0), Vector(0, 0, 1), 1.6), False)
sketch6.addConstraint(Sketcher.Constraint("Coincident", 0, 3, -1, 1))
sketch6.addConstraint(Sketcher.Constraint("Coincident", 1, 3, -1, 1))
sketch6.addConstraint(Sketcher.Constraint("Diameter", 0, 8.0))
sketch6.addConstraint(Sketcher.Constraint("Diameter", 1, 3.3))
pad4 = body5.newObject("PartDesign::Pad", "Pad003")
pad4.Profile = sketch6
pad4.Length = 1.5

doc.recompute()
